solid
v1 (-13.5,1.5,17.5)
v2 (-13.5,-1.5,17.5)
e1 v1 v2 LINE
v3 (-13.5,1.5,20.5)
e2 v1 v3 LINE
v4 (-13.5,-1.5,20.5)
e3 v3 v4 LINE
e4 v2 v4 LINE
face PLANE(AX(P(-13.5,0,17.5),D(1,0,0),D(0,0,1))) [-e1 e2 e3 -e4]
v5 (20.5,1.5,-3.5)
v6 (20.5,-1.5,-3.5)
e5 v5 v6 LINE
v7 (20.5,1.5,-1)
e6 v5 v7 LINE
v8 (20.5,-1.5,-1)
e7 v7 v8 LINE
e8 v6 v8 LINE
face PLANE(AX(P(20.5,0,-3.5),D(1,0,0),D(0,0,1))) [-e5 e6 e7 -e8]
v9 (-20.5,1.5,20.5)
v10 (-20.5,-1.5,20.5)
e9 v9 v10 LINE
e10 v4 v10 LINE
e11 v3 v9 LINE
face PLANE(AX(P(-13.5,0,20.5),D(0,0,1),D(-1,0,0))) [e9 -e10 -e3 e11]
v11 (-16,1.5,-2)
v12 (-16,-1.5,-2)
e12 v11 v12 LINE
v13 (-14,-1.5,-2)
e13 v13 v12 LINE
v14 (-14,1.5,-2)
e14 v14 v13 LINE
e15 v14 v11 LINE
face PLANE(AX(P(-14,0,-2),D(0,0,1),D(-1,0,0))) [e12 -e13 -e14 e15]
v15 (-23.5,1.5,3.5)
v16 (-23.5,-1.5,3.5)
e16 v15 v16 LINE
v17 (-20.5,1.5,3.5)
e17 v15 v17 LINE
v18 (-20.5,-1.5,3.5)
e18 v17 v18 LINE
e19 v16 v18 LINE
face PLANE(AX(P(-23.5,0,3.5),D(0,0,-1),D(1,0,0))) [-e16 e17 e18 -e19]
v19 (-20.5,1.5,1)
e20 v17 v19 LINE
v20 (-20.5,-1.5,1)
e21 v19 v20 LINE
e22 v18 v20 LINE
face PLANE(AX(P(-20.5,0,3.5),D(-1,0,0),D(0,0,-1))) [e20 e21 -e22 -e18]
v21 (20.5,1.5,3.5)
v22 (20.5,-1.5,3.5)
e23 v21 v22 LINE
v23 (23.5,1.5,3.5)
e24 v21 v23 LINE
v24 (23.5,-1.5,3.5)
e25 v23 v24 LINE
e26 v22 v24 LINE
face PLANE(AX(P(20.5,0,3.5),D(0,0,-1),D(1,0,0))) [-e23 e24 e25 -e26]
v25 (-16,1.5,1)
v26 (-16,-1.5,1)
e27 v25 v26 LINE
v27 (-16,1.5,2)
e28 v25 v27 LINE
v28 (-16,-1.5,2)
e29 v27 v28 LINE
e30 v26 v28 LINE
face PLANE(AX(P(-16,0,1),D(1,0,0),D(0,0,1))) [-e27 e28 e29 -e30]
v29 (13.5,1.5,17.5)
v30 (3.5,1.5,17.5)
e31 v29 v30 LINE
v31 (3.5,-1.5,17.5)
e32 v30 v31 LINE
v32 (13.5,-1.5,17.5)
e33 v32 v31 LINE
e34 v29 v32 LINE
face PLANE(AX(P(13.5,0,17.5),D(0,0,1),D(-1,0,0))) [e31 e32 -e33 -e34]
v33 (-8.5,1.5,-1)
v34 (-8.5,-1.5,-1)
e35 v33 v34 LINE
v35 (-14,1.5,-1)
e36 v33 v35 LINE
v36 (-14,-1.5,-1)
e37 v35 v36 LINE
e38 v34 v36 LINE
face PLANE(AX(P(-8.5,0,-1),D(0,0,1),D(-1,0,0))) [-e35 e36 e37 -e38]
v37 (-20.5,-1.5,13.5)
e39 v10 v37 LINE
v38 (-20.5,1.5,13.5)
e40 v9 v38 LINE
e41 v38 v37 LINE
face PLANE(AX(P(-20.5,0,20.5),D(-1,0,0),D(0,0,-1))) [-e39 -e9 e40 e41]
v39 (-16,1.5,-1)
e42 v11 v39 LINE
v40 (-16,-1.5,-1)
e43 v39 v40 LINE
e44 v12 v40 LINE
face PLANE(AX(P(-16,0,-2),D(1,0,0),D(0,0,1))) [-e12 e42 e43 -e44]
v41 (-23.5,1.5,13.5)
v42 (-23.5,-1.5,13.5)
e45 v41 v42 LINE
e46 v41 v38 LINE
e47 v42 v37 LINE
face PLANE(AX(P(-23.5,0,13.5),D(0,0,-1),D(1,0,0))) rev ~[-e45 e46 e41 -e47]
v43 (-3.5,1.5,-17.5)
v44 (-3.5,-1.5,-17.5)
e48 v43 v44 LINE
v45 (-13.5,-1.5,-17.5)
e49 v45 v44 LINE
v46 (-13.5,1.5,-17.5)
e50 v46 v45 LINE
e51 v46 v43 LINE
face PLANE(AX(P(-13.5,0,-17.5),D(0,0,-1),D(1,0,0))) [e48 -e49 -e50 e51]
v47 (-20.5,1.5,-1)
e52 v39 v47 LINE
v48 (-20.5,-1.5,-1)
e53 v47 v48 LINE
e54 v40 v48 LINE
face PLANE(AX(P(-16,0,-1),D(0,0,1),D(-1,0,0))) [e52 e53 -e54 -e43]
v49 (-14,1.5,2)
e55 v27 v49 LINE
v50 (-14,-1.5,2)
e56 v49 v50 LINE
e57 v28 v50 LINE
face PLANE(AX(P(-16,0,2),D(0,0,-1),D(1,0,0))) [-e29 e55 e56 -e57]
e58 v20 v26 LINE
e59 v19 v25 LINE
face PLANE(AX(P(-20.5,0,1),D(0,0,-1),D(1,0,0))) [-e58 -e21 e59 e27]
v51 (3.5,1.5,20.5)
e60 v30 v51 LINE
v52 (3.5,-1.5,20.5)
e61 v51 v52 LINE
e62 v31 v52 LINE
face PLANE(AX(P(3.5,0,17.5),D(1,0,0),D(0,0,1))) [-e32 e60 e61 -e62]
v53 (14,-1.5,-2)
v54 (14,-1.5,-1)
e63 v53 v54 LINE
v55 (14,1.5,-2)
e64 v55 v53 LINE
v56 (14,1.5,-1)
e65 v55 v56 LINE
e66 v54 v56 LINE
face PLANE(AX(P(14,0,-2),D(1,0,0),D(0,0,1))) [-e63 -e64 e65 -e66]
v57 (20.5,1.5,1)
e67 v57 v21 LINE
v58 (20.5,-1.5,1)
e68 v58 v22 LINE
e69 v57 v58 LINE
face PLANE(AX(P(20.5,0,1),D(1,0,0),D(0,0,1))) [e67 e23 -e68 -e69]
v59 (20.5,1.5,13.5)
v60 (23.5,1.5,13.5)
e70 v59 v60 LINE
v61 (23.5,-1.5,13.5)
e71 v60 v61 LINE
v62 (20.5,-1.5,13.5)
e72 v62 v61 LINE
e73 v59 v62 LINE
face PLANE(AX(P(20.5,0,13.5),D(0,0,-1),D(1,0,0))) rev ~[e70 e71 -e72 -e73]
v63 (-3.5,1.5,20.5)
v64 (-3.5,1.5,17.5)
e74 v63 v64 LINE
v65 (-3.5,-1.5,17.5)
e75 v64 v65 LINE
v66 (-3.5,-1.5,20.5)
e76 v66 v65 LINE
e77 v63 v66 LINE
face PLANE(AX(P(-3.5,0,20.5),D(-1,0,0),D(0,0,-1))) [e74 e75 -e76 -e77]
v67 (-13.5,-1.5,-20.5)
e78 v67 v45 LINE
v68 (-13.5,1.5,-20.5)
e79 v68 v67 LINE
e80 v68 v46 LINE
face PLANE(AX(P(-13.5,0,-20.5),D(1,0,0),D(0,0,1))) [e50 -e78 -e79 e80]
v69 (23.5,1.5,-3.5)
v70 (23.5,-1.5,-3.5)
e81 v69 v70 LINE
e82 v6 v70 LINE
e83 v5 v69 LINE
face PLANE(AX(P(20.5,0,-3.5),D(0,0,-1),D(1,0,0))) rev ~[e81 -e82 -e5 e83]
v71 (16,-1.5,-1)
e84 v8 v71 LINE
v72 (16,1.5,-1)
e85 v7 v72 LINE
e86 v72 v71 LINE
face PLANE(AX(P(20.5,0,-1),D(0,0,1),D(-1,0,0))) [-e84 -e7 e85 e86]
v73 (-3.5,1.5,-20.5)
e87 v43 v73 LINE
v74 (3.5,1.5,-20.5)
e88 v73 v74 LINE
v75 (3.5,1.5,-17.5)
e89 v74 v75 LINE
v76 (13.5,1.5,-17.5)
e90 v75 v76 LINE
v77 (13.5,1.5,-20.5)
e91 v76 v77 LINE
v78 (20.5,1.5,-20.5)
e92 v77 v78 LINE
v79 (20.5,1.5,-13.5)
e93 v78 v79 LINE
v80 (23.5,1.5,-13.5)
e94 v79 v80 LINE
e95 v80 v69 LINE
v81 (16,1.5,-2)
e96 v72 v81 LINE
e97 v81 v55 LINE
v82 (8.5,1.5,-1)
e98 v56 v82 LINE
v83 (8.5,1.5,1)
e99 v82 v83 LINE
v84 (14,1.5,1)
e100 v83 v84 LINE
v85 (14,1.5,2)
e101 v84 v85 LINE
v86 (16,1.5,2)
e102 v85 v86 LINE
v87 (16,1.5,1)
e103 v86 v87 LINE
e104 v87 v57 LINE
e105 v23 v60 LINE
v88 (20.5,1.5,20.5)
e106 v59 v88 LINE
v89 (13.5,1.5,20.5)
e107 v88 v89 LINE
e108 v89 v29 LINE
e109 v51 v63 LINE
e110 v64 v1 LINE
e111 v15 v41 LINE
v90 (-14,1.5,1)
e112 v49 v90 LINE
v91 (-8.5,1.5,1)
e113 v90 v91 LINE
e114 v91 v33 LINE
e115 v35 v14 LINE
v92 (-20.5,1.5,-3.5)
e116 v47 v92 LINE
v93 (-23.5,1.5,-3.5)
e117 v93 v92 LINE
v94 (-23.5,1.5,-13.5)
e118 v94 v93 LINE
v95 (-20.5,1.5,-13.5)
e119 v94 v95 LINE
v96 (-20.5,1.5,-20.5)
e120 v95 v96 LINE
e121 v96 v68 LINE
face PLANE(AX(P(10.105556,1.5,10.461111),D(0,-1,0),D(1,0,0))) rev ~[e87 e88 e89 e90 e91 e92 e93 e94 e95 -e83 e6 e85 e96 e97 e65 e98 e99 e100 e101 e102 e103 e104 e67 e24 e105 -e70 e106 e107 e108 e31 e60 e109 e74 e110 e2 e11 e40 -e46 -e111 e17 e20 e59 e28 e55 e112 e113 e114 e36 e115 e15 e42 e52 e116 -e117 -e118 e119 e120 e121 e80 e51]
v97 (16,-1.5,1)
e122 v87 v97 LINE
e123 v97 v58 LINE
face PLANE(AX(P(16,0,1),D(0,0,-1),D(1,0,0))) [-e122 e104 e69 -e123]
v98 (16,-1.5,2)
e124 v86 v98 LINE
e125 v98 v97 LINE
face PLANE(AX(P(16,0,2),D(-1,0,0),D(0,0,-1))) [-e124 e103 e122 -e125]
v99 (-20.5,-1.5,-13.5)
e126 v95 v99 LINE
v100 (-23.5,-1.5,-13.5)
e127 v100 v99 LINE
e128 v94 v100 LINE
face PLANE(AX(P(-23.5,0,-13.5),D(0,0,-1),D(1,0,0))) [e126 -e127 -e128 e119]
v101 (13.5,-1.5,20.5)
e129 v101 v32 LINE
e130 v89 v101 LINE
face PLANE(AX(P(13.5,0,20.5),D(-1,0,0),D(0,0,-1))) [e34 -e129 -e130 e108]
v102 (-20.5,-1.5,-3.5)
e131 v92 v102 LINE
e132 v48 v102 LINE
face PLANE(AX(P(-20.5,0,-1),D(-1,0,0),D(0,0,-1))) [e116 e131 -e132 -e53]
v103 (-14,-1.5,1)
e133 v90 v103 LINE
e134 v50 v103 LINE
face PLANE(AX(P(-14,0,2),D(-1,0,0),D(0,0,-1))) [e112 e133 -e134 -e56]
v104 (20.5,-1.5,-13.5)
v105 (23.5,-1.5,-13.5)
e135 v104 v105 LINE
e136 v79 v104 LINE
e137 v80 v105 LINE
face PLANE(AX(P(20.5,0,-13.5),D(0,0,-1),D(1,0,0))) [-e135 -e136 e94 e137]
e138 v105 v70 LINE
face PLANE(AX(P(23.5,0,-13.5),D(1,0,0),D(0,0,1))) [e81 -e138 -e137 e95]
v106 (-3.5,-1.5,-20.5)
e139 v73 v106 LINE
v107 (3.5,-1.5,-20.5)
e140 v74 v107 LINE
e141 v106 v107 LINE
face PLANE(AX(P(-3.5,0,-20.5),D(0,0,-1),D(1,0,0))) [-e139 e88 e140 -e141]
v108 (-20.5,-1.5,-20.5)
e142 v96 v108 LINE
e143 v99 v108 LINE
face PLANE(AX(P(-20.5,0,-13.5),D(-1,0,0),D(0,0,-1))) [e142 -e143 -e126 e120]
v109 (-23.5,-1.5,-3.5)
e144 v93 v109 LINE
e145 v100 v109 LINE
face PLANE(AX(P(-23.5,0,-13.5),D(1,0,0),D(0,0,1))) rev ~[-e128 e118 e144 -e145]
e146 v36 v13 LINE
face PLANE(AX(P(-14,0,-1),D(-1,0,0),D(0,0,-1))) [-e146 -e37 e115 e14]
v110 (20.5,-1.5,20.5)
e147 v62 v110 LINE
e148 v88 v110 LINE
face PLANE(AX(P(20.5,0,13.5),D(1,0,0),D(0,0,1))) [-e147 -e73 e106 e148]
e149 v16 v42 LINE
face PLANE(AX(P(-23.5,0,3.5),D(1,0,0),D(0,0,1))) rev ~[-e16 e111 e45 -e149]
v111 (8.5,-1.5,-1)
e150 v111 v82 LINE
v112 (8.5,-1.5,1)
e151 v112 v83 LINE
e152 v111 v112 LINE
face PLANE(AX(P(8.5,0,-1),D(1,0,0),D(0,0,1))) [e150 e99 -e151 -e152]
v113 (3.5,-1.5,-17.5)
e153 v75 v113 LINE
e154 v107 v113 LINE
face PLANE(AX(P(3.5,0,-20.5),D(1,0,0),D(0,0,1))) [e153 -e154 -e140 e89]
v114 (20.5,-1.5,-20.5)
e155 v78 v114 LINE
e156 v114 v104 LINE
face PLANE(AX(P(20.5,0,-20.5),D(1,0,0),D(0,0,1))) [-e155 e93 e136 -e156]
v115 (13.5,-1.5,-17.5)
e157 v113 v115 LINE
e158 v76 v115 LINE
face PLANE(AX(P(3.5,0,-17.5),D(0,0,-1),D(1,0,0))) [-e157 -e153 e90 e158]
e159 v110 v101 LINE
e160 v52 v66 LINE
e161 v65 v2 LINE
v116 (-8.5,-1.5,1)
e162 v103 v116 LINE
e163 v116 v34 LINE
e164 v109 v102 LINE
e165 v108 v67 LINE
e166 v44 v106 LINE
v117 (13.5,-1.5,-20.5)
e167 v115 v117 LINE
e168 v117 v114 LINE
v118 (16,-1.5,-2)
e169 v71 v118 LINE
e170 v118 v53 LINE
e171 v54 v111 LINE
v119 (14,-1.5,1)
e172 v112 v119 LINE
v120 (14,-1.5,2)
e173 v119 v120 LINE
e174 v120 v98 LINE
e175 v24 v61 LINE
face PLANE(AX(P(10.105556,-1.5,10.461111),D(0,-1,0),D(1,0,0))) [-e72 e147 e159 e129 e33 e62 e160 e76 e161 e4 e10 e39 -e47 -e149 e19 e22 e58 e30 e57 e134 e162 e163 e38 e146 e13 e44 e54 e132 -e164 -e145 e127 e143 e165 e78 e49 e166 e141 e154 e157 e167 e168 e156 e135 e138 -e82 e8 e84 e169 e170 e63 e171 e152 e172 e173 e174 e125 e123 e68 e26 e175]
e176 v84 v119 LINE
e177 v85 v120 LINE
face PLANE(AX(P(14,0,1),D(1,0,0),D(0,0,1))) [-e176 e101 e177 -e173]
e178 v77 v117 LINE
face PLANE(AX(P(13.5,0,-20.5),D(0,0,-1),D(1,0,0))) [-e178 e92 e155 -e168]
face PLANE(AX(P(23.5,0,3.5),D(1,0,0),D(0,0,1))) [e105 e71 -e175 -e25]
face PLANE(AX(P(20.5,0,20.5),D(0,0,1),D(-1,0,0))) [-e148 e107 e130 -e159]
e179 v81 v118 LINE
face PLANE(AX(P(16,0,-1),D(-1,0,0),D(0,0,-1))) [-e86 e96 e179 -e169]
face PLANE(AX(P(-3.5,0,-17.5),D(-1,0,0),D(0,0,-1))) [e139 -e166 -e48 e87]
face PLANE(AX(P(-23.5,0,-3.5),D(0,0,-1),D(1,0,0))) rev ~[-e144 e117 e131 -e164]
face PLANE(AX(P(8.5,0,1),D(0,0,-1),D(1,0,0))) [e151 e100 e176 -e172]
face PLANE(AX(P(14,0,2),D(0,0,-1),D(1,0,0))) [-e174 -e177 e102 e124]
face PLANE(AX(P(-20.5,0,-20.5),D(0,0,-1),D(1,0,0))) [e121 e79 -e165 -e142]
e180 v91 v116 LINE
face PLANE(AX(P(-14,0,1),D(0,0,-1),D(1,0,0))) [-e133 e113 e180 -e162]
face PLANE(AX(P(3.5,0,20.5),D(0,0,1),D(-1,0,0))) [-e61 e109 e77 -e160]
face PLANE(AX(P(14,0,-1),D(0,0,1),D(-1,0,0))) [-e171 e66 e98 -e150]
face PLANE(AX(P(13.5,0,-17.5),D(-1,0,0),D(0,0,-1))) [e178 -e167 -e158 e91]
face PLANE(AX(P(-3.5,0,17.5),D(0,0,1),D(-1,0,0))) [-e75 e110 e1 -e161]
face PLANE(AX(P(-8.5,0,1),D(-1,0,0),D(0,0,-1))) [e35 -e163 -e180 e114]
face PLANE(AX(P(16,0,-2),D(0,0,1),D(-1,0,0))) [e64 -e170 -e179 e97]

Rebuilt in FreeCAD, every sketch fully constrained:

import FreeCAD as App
import Part
import Sketcher

V = App.Vector
Q = App.Units.Quantity


def add_polygon(sketch, points):
    """Adds a closed chain of lines whose ends are joined by coincident constraints."""
    first, n = sketch.GeometryCount, len(points)
    for a, b in zip(points, points[1:] + points[:1]):
        sketch.addGeometry(Part.LineSegment(App.Vector(*a, 0), App.Vector(*b, 0)), False)
    for i in range(n):
        sketch.addConstraint(Sketcher.Constraint("Coincident", first + i, 2, first + (i + 1) % n, 1))

doc = App.newDocument("Part")
params = doc.addObject("Spreadsheet::Sheet", "Params")
for row, (alias, value) in enumerate([
    ("sketch1_width", "2 mm"),
    ("sketch1_width2", "3 mm"),
    ("sketch1_width3", "7 mm"),
    ("sketch1_width4", "10 mm"),
    ("sketch1_height", "1 mm"),
    ("pad1_length", "3 mm"),
], start=1):
    params.set(f"A{row}", alias)
    params.set(f"B{row}", "=" + value)
    params.setAlias(f"B{row}", alias)

body = doc.addObject("PartDesign::Body", "Body")

# Sketch on XZ plane
sketch1 = body.newObject("Sketcher::SketchObject", "Sketch")
sketch1.AttachmentSupport = (doc.getObject("XZ_Plane"), [""])
sketch1.MapMode = "FlatFace"
add_polygon(sketch1, [(8.5, 1), (14, 1), (14, 2), (16, 2), (16, 1), (20.5, 1), (20.5, 3.5), (23.5, 3.5), (23.5, 13.5), (20.5, 13.5), (20.5, 20.5), (13.5, 20.5), (13.5, 17.5), (3.5, 17.5), (3.5, 20.5), (-3.5, 20.5), (-3.5, 17.5), (-13.5, 17.5), (-13.5, 20.5), (-20.5, 20.5), (-20.5, 13.5), (-23.5, 13.5), (-23.5, 3.5), (-20.5, 3.5), (-20.5, 1), (-16, 1), (-16, 2), (-14, 2), (-14, 1), (-8.5, 1), (-8.5, -1), (-14, -1), (-14, -2), (-16, -2), (-16, -1), (-20.5, -1), (-20.5, -3.5), (-23.5, -3.5), (-23.5, -13.5), (-20.5, -13.5), (-20.5, -20.5), (-13.5, -20.5), (-13.5, -17.5), (-3.5, -17.5), (-3.5, -20.5), (3.5, -20.5), (3.5, -17.5), (13.5, -17.5), (13.5, -20.5), (20.5, -20.5), (20.5, -13.5), (23.5, -13.5), (23.5, -3.5), (20.5, -3.5), (20.5, -1), (16, -1), (16, -2), (14, -2), (14, -1), (8.5, -1)])  # lines 0-59
sketch1.addConstraint(Sketcher.Constraint("Horizontal", 0))
sketch1.addConstraint(Sketcher.Constraint("Vertical", 1))
sketch1.addConstraint(Sketcher.Constraint("Horizontal", 2))
sketch1.addConstraint(Sketcher.Constraint("Vertical", 3))
sketch1.addConstraint(Sketcher.Constraint("Horizontal", 4))
sketch1.addConstraint(Sketcher.Constraint("Vertical", 5))
sketch1.addConstraint(Sketcher.Constraint("Horizontal", 6))
sketch1.addConstraint(Sketcher.Constraint("Vertical", 7))
sketch1.addConstraint(Sketcher.Constraint("Horizontal", 8))
sketch1.addConstraint(Sketcher.Constraint("Vertical", 9))
sketch1.addConstraint(Sketcher.Constraint("Horizontal", 10))
sketch1.addConstraint(Sketcher.Constraint("Vertical", 11))
sketch1.addConstraint(Sketcher.Constraint("Horizontal", 12))
sketch1.addConstraint(Sketcher.Constraint("Vertical", 13))
sketch1.addConstraint(Sketcher.Constraint("Horizontal", 14))
sketch1.addConstraint(Sketcher.Constraint("Vertical", 15))
sketch1.addConstraint(Sketcher.Constraint("Horizontal", 16))
sketch1.addConstraint(Sketcher.Constraint("Vertical", 17))
sketch1.addConstraint(Sketcher.Constraint("Horizontal", 18))
sketch1.addConstraint(Sketcher.Constraint("Vertical", 19))
sketch1.addConstraint(Sketcher.Constraint("Horizontal", 20))
sketch1.addConstraint(Sketcher.Constraint("Vertical", 21))
sketch1.addConstraint(Sketcher.Constraint("Horizontal", 22))
sketch1.addConstraint(Sketcher.Constraint("Vertical", 23))
sketch1.addConstraint(Sketcher.Constraint("Horizontal", 24))
sketch1.addConstraint(Sketcher.Constraint("Vertical", 25))
sketch1.addConstraint(Sketcher.Constraint("Horizontal", 26))
sketch1.addConstraint(Sketcher.Constraint("Vertical", 27))
sketch1.addConstraint(Sketcher.Constraint("Horizontal", 28))
sketch1.addConstraint(Sketcher.Constraint("Vertical", 29))
sketch1.addConstraint(Sketcher.Constraint("Horizontal", 30))
sketch1.addConstraint(Sketcher.Constraint("Vertical", 31))
sketch1.addConstraint(Sketcher.Constraint("Horizontal", 32))
sketch1.addConstraint(Sketcher.Constraint("Vertical", 33))
sketch1.addConstraint(Sketcher.Constraint("Horizontal", 34))
sketch1.addConstraint(Sketcher.Constraint("Vertical", 35))
sketch1.addConstraint(Sketcher.Constraint("Horizontal", 36))
sketch1.addConstraint(Sketcher.Constraint("Vertical", 37))
sketch1.addConstraint(Sketcher.Constraint("Horizontal", 38))
sketch1.addConstraint(Sketcher.Constraint("Vertical", 39))
sketch1.addConstraint(Sketcher.Constraint("Horizontal", 40))
sketch1.addConstraint(Sketcher.Constraint("Vertical", 41))
sketch1.addConstraint(Sketcher.Constraint("Horizontal", 42))
sketch1.addConstraint(Sketcher.Constraint("Vertical", 43))
sketch1.addConstraint(Sketcher.Constraint("Horizontal", 44))
sketch1.addConstraint(Sketcher.Constraint("Vertical", 45))
sketch1.addConstraint(Sketcher.Constraint("Horizontal", 46))
sketch1.addConstraint(Sketcher.Constraint("Vertical", 47))
sketch1.addConstraint(Sketcher.Constraint("Horizontal", 48))
sketch1.addConstraint(Sketcher.Constraint("Vertical", 49))
sketch1.addConstraint(Sketcher.Constraint("Horizontal", 50))
sketch1.addConstraint(Sketcher.Constraint("Vertical", 51))
sketch1.addConstraint(Sketcher.Constraint("Horizontal", 52))
sketch1.addConstraint(Sketcher.Constraint("Vertical", 53))
sketch1.addConstraint(Sketcher.Constraint("Horizontal", 54))
sketch1.addConstraint(Sketcher.Constraint("Vertical", 55))
sketch1.addConstraint(Sketcher.Constraint("Horizontal", 56))
sketch1.addConstraint(Sketcher.Constraint("Vertical", 57))
sketch1.addConstraint(Sketcher.Constraint("Horizontal", 58))
sketch1.addConstraint(Sketcher.Constraint("Vertical", 59))
sketch1.addConstraint(Sketcher.Constraint("Symmetric", 0, 2, 30, 2, -1, 1))
sketch1.addConstraint(Sketcher.Constraint("Symmetric", 2, 2, 32, 2, -1, 1))
sketch1.addConstraint(Sketcher.Constraint("Symmetric", 4, 2, 34, 2, -1, 1))
sketch1.addConstraint(Sketcher.Constraint("Symmetric", 6, 2, 36, 2, -1, 1))
sketch1.addConstraint(Sketcher.Constraint("Symmetric", 8, 2, 38, 2, -1, 1))
sketch1.addConstraint(Sketcher.Constraint("Symmetric", 10, 2, 40, 2, -1, 1))
sketch1.addConstraint(Sketcher.Constraint("Symmetric", 12, 2, 42, 2, -1, 1))
sketch1.addConstraint(Sketcher.Constraint("Symmetric", 14, 2, 44, 2, -1, 1))
sketch1.addConstraint(Sketcher.Constraint("Symmetric", 16, 2, 46, 2, -1, 1))
sketch1.addConstraint(Sketcher.Constraint("Symmetric", 18, 2, 48, 2, -1, 1))
sketch1.addConstraint(Sketcher.Constraint("Symmetric", 20, 2, 50, 2, -1, 1))
sketch1.addConstraint(Sketcher.Constraint("Symmetric", 22, 2, 52, 2, -1, 1))
sketch1.addConstraint(Sketcher.Constraint("Symmetric", 24, 2, 54, 2, -1, 1))
sketch1.addConstraint(Sketcher.Constraint("Symmetric", 26, 2, 56, 2, -1, 1))
sketch1.addConstraint(Sketcher.Constraint("Symmetric", 28, 2, 58, 2, -1, 1))
sketch1.addConstraint(Sketcher.Constraint("Symmetric", 12, 2, 15, 2, -2))
sketch1.addConstraint(Sketcher.Constraint("Symmetric", 10, 2, 17, 2, -2))
sketch1.addConstraint(Sketcher.Constraint("Symmetric", 8, 2, 19, 2, -2))
sketch1.addConstraint(Sketcher.Constraint("Symmetric", 6, 2, 21, 2, -2))
sketch1.addConstraint(Sketcher.Constraint("Symmetric", 4, 2, 23, 2, -2))
sketch1.addConstraint(Sketcher.Constraint("Symmetric", 2, 2, 25, 2, -2))
sketch1.addConstraint(Sketcher.Constraint("Symmetric", 0, 2, 27, 2, -2))
sketch1.addConstraint(Sketcher.Constraint("Horizontal", 0, 2, 3, 2))
sketch1.addConstraint(Sketcher.Constraint("Horizontal", 10, 2, 13, 2))
sketch1.addConstraint(Sketcher.Constraint("Vertical", 5, 2, 8, 2))
sketch1.addConstraint(Sketcher.Constraint("Equal", 10, 14))
sketch1.addConstraint(Sketcher.Constraint("Equal", 46, 7))
sketch1.addConstraint(Sketcher.Constraint("Equal", 48, 9))
sketch1.addConstraint(Sketcher.Constraint("Equal", 52, 11))
sketch1.addConstraint(Sketcher.Constraint("Equal", 56, 29))
sketch1.addConstraint(Sketcher.Constraint("DistanceX", 2, 1, 2, 2, Q("2 mm")))
sketch1.addConstraint(Sketcher.Constraint("DistanceX", 6, 1, 6, 2, Q("3 mm")))
sketch1.addConstraint(Sketcher.Constraint("DistanceX", 10, 2, 10, 1, Q("7 mm")))
sketch1.addConstraint(Sketcher.Constraint("DistanceX", 12, 2, 12, 1, Q("10 mm")))
sketch1.addConstraint(Sketcher.Constraint("DistanceY", 1, 1, 1, 2, Q("1 mm")))
sketch1.addConstraint(Sketcher.Constraint("DistanceX", 0, 1, 0, 2, Q("5.5 mm")))
sketch1.addConstraint(Sketcher.Constraint("DistanceX", 4, 1, 4, 2, Q("4.5 mm")))
sketch1.addConstraint(Sketcher.Constraint("DistanceY", 5, 1, 5, 2, Q("2.5 mm")))
sketch1.setExpression("Constraints[150]", "Params.sketch1_width")
sketch1.setExpression("Constraints[151]", "Params.sketch1_width2")
sketch1.setExpression("Constraints[152]", "Params.sketch1_width3")
sketch1.setExpression("Constraints[153]", "Params.sketch1_width4")
sketch1.setExpression("Constraints[154]", "Params.sketch1_height")
pad1 = body.newObject("PartDesign::Pad", "Pad")
pad1.Profile = sketch1
pad1.setExpression("Length", "Params.pad1_length")
pad1.Midplane = True

doc.recompute()
